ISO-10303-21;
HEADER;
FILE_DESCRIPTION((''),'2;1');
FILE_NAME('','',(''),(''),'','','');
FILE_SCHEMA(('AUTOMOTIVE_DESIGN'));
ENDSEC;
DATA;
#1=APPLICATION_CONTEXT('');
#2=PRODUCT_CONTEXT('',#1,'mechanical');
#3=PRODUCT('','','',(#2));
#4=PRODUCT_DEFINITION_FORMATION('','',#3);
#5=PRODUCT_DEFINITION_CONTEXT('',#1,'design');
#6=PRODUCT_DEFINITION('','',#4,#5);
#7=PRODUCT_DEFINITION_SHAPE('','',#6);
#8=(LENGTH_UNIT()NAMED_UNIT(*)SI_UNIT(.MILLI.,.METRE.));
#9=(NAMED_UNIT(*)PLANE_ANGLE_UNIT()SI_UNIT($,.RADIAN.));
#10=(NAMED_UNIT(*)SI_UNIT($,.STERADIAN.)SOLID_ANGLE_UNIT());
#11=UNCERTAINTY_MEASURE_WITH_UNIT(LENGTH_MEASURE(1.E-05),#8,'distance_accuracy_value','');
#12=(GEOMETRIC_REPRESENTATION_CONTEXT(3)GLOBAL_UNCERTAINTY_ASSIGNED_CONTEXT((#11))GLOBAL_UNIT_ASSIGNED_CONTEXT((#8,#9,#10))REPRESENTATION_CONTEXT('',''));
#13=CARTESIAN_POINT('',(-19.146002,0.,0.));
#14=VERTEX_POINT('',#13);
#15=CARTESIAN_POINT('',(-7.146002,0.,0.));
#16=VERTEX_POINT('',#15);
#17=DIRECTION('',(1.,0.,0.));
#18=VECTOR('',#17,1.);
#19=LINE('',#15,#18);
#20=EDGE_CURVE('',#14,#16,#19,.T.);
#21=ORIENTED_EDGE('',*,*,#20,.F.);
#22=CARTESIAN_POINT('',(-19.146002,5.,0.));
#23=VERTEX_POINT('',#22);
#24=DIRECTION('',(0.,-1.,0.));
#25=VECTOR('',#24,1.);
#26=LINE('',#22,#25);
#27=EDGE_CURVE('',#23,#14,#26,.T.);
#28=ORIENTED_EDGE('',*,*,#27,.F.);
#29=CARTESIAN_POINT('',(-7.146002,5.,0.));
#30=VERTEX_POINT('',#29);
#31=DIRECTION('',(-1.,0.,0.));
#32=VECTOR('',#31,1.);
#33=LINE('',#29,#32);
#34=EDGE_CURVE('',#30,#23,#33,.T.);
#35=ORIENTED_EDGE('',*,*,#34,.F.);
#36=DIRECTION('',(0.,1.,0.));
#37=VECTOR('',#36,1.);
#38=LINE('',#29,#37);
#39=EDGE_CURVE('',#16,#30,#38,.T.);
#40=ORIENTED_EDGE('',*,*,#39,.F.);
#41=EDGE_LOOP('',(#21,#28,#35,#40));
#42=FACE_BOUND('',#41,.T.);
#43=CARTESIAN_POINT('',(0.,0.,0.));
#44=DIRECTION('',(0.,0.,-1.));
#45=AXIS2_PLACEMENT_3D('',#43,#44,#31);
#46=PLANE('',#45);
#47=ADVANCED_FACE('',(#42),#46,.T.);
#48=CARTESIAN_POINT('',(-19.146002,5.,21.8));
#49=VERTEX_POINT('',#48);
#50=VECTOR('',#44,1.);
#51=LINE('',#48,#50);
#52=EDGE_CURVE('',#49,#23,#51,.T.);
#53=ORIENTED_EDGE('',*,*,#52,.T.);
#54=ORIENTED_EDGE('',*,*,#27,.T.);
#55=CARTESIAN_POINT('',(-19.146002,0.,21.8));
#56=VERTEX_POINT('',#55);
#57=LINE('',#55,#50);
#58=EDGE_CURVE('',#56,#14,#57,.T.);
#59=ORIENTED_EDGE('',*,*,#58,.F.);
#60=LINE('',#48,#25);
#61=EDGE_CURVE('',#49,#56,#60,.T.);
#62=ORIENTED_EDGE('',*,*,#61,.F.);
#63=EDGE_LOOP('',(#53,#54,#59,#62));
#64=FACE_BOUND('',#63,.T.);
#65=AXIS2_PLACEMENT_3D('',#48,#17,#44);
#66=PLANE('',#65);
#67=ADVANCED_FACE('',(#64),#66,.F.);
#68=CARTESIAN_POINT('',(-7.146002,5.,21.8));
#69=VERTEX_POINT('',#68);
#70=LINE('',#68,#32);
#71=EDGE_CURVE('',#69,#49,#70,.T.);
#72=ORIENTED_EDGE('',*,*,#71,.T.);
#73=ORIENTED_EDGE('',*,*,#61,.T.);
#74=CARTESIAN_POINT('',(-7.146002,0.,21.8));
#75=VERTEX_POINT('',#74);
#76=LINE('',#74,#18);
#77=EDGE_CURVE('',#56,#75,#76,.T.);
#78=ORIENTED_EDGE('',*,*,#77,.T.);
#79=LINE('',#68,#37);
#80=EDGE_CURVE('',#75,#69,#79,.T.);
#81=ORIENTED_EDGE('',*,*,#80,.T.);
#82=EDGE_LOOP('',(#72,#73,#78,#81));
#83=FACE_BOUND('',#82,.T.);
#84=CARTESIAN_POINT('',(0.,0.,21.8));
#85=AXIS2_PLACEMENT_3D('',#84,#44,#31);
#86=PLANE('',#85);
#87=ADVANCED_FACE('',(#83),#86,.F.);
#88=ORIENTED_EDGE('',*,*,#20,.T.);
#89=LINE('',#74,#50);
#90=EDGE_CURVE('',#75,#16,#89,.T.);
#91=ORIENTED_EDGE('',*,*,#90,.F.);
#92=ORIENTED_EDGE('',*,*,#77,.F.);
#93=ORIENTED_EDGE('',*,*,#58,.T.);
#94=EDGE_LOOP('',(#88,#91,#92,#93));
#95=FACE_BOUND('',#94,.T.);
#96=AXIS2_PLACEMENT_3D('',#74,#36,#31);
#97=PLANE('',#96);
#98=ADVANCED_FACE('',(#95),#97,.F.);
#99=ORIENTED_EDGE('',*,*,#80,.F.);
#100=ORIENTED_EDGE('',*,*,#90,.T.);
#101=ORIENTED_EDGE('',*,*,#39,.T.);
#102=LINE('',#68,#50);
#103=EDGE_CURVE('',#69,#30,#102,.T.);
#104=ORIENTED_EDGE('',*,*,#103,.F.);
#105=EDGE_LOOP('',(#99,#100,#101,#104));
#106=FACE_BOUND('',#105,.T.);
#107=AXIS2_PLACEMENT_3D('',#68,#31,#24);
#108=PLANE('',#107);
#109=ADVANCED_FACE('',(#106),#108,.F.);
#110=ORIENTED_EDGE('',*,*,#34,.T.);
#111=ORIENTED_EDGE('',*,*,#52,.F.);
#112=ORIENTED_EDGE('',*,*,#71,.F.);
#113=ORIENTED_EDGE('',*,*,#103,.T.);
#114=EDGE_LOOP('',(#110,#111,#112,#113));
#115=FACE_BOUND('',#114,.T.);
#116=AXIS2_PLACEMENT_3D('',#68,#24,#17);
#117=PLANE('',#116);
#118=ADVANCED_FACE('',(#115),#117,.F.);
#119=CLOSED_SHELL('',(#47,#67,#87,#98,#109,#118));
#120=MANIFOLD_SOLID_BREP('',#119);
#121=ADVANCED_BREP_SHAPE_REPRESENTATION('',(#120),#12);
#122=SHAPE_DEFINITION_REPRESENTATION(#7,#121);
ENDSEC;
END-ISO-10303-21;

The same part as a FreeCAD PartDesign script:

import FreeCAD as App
import Part
import Sketcher

V = App.Vector


def add_polygon(sketch, points):
    """Adds a closed chain of lines whose ends are joined by coincident constraints."""
    first, n = sketch.GeometryCount, len(points)
    for a, b in zip(points, points[1:] + points[:1]):
        sketch.addGeometry(Part.LineSegment(App.Vector(*a, 0), App.Vector(*b, 0)), False)
    for i in range(n):
        sketch.addConstraint(Sketcher.Constraint("Coincident", first + i, 2, first + (i + 1) % n, 1))

doc = App.newDocument("Part")
params = doc.addObject("Spreadsheet::Sheet", "Params")
for row, (alias, value) in enumerate([
    ("sketch1_width", "12 mm"),
    ("sketch1_height", "5 mm"),
    ("pad1_length", "21.8 mm"),
], start=1):
    params.set(f"A{row}", alias)
    params.set(f"B{row}", "=" + value)
    params.setAlias(f"B{row}", alias)

body = doc.addObject("PartDesign::Body", "Body")

# Sketch on XY plane
sketch1 = doc.addObject("Sketcher::SketchObject", "Sketch")
body.addObject(sketch1)
sketch1.AttachmentSupport = (doc.XY_Plane, [""])
sketch1.MapMode = "FlatFace"
add_polygon(sketch1, [(-19, 5), (-19, 0), (-7, 0), (-7, 5)])  # lines 0-3
sketch1.addConstraint([
    Sketcher.Constraint("Vertical", 0),
    Sketcher.Constraint("Horizontal", 1),
    Sketcher.Constraint("Vertical", 2),
    Sketcher.Constraint("Horizontal", 3),
    Sketcher.Constraint("PointOnObject", 0, 2, -1),
    Sketcher.Constraint("DistanceX", 1, 1, 1, 2, 12.0),
    Sketcher.Constraint("DistanceY", 0, 2, 0, 1, 5.0),
    Sketcher.Constraint("DistanceX", 0, 2, -1, 1, 19.146002),
])
sketch1.setExpression("Constraints[9]", "Params.sketch1_width")
sketch1.setExpression("Constraints[10]", "Params.sketch1_height")
pad1 = doc.addObject("PartDesign::Pad", "Pad")
body.addObject(pad1)
pad1.Profile = sketch1
pad1.setExpression("Length", "Params.pad1_length")

doc.recompute()
